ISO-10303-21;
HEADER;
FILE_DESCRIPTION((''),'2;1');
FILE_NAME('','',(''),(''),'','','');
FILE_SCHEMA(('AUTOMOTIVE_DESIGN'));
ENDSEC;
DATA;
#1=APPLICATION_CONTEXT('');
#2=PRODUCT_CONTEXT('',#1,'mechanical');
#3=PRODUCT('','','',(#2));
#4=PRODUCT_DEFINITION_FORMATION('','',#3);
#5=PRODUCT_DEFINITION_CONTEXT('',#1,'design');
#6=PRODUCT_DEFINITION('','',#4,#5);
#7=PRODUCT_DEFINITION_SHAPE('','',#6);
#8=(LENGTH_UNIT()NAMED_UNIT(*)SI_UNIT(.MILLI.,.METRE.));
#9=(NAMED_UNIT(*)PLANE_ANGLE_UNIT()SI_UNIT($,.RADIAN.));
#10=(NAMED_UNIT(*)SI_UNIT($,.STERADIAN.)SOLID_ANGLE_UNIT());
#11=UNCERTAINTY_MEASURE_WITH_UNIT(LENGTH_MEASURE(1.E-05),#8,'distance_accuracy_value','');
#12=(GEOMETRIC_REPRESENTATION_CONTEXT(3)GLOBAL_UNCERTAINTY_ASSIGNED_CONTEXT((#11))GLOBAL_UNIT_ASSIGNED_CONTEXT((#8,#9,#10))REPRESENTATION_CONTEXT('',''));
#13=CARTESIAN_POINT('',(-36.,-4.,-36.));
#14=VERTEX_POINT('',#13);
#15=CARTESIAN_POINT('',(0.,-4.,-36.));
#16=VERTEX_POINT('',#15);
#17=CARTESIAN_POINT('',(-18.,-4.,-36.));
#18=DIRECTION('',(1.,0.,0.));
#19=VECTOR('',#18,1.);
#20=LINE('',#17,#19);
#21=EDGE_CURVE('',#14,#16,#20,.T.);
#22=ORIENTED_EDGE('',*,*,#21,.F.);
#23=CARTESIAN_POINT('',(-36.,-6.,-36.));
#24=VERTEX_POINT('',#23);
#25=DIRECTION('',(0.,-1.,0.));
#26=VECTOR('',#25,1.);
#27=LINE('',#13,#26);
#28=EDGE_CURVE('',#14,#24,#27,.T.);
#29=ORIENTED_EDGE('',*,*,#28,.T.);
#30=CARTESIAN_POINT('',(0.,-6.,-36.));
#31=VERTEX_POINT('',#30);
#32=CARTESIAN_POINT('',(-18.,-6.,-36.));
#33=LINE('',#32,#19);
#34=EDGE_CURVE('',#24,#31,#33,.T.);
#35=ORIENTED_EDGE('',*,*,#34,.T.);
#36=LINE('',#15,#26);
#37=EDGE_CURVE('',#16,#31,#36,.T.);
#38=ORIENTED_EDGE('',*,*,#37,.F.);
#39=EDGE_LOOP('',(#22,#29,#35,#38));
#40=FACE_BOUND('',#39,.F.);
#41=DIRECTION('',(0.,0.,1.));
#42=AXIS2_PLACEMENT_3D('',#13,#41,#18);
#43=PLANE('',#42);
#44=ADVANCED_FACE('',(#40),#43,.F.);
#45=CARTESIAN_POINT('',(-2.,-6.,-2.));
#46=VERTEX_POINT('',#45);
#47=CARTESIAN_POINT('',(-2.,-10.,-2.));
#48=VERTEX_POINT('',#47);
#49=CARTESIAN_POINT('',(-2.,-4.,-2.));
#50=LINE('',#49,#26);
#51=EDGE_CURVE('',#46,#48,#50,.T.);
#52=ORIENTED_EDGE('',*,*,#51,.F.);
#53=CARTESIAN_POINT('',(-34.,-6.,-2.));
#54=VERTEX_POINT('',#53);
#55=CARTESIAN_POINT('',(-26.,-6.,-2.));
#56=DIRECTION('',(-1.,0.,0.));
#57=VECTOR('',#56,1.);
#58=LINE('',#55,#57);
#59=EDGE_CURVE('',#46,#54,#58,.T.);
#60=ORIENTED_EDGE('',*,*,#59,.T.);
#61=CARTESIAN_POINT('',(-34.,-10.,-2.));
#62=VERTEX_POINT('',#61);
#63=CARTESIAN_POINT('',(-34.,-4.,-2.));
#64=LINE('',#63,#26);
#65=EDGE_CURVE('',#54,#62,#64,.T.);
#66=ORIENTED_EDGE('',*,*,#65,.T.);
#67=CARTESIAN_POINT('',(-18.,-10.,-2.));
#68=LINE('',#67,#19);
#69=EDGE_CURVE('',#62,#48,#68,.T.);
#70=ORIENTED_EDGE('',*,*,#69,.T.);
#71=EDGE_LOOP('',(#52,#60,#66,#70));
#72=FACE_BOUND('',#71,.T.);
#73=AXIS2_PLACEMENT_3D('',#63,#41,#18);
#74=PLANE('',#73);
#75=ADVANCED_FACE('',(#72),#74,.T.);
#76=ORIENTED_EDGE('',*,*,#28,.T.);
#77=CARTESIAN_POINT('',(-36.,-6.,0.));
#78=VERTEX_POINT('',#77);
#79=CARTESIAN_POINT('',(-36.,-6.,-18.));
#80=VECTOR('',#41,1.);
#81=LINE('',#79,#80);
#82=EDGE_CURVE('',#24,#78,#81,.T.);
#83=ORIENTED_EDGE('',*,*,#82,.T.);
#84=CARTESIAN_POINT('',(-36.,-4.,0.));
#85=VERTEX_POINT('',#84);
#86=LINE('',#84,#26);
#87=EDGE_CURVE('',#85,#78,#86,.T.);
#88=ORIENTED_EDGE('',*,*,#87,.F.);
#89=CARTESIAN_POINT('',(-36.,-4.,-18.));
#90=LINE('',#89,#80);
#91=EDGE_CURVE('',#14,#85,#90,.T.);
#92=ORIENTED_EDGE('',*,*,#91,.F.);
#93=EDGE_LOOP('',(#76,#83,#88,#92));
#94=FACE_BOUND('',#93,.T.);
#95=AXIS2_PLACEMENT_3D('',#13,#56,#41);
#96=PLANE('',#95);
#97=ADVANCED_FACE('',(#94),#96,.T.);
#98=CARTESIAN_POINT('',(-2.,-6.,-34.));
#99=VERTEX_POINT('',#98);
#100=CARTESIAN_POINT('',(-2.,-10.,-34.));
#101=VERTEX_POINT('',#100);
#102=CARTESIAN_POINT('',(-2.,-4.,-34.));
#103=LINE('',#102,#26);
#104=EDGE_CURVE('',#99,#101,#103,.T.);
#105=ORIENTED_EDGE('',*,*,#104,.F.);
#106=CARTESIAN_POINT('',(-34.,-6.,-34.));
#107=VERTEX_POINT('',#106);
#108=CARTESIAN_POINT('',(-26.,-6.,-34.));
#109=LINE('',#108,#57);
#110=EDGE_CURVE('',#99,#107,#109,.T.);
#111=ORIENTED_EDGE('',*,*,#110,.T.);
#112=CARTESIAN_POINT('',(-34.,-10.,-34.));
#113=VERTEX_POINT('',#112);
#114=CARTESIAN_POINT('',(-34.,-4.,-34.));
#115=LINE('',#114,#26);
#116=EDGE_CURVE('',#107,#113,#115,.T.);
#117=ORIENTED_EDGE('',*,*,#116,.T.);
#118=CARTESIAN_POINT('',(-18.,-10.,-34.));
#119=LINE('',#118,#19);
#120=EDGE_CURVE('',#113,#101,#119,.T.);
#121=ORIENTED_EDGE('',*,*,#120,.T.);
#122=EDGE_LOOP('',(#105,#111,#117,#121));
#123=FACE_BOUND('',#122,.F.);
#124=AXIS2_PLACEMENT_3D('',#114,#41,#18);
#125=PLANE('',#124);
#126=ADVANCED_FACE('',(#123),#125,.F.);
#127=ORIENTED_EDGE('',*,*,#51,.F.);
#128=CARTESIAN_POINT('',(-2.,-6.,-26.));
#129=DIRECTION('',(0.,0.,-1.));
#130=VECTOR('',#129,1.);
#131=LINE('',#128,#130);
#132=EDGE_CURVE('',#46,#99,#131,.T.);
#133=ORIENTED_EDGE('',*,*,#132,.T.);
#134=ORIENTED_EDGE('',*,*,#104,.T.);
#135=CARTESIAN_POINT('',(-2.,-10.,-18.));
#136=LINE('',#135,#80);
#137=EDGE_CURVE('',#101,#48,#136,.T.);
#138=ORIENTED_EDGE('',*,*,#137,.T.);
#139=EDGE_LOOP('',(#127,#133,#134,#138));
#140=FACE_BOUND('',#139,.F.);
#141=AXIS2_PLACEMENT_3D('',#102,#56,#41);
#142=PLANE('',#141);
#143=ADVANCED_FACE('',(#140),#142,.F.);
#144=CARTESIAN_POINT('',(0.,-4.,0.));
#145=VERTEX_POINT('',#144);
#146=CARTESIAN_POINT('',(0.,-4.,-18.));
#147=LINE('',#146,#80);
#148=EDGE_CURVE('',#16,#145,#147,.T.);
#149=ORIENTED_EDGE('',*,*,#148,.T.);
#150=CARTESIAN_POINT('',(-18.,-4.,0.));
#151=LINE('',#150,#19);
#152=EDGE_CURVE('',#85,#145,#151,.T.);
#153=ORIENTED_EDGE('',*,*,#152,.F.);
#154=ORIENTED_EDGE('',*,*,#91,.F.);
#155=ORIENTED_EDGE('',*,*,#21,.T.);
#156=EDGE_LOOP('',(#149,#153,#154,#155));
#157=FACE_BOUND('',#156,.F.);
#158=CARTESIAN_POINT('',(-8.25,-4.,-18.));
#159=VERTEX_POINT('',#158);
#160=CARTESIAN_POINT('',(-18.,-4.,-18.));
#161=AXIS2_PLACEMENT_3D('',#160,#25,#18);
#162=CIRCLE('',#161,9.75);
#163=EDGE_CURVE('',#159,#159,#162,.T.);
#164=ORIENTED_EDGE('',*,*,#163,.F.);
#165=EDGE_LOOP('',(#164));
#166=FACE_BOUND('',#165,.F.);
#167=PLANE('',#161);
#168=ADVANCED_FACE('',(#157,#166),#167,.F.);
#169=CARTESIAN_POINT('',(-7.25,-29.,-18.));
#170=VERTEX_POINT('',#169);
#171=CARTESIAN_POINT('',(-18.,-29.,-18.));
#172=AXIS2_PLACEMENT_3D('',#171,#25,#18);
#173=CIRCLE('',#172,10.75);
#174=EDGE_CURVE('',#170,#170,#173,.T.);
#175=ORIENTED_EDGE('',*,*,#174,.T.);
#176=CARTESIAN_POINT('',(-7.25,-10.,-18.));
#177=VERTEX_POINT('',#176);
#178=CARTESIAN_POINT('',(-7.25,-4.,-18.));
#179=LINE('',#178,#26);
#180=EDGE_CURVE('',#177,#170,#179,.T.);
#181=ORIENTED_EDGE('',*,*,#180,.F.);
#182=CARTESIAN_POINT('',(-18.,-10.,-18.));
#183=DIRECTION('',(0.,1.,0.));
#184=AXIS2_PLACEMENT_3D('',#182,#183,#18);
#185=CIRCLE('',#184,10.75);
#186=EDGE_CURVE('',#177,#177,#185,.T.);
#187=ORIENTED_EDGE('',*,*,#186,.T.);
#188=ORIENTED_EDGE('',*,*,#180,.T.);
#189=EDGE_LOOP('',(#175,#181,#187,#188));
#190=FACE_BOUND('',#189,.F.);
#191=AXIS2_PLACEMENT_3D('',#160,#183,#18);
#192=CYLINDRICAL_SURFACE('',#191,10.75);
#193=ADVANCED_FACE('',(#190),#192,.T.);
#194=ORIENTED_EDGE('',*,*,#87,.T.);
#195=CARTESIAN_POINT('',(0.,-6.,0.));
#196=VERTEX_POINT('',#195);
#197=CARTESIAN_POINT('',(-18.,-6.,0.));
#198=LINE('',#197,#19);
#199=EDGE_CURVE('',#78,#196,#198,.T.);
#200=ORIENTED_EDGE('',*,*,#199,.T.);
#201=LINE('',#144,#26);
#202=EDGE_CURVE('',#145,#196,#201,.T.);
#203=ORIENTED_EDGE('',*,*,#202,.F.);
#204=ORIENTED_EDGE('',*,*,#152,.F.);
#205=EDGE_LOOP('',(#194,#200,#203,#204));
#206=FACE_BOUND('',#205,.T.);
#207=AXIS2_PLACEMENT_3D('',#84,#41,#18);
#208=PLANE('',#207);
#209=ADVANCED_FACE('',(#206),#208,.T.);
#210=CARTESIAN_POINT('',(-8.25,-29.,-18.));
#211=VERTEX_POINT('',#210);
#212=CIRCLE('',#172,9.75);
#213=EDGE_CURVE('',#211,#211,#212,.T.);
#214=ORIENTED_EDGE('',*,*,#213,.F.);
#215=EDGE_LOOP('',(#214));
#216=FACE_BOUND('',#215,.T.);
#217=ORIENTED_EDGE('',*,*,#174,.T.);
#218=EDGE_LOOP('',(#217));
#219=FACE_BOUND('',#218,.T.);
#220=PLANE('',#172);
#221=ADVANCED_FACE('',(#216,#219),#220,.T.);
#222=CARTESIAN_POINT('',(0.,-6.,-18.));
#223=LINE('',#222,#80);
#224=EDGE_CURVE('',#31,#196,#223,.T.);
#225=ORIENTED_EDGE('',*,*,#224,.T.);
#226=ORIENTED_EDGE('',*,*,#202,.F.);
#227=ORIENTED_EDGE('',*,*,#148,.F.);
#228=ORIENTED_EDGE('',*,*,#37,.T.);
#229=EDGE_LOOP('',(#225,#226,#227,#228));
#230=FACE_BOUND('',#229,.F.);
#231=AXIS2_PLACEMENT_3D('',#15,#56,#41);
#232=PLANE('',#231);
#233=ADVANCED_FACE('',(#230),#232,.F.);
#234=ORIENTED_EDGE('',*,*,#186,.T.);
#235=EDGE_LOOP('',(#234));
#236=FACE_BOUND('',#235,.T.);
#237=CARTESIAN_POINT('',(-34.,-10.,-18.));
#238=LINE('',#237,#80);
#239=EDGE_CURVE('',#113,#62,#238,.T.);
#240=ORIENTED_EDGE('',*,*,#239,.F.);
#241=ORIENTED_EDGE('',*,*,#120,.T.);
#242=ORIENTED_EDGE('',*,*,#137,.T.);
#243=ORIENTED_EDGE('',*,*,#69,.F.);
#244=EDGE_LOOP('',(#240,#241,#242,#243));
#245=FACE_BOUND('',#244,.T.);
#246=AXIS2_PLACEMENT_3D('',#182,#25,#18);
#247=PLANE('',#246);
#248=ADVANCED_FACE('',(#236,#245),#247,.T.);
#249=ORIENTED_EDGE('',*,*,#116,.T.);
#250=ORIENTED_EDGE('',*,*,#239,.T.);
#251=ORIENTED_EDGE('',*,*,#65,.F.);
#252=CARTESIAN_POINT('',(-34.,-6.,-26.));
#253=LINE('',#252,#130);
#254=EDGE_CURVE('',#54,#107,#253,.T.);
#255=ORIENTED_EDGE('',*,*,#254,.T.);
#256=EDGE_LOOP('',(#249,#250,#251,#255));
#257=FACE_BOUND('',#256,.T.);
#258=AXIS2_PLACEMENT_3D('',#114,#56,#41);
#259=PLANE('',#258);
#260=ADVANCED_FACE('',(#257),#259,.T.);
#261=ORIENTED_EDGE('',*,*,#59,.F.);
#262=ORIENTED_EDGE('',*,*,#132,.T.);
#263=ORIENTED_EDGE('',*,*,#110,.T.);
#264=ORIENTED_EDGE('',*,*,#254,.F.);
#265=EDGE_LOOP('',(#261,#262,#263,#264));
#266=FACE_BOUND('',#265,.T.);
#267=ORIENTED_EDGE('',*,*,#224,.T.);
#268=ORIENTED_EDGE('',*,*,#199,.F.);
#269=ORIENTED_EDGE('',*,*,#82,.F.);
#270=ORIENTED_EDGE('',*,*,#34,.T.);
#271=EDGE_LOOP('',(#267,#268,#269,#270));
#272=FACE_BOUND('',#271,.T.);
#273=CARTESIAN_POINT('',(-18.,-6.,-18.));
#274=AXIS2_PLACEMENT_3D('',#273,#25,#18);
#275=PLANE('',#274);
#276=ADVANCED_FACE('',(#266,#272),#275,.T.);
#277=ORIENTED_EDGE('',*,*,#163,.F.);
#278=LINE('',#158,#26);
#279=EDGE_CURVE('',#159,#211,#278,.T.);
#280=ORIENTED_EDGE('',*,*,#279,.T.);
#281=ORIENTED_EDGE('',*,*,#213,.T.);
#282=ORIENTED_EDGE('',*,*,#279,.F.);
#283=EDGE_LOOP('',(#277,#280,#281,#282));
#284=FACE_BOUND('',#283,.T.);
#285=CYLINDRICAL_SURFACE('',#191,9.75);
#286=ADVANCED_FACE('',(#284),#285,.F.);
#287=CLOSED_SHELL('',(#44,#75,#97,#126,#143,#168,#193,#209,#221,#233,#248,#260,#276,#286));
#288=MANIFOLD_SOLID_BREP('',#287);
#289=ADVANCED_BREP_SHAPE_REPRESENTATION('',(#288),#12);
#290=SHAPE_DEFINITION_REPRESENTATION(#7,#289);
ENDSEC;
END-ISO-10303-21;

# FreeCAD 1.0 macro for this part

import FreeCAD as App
import Part
import Sketcher
Q = App.Units.Quantity


def add_polygon(sketch, points):
    """Adds a closed chain of lines whose ends are joined by coincident constraints."""
    first, n = sketch.GeometryCount, len(points)
    for a, b in zip(points, points[1:] + points[:1]):
        sketch.addGeometry(Part.LineSegment(App.Vector(*a, 0), App.Vector(*b, 0)), False)
    for i in range(n):
        sketch.addConstraint(Sketcher.Constraint("Coincident", first + i, 2, first + (i + 1) % n, 1))

doc = App.newDocument("Part")
body = doc.addObject("PartDesign::Body", "Body")

# Sketch on XZ plane
sketch1 = body.newObject("Sketcher::SketchObject", "Sketch")
sketch1.AttachmentSupport = (doc.getObject("XZ_Plane"), [""])
sketch1.MapMode = "FlatFace"
add_polygon(sketch1, [(-34, -2), (-34, -34), (-2, -34), (-2, -2)])  # lines 0-3
sketch1.addGeometry(Part.Circle(App.Vector(-18, -18, 0), App.Vector(0, 0, 1), 9.75), False)  # 4
sketch1.addConstraint([
    Sketcher.Constraint("Vertical", 0),
    Sketcher.Constraint("Horizontal", 1),
    Sketcher.Constraint("Vertical", 2),
    Sketcher.Constraint("Horizontal", 3),
    Sketcher.Constraint("Equal", 3, 0),
    Sketcher.Constraint("Diameter", 4, Q("19.5 mm")),
    Sketcher.Constraint("DistanceX", 1, 1, 1, 2, Q("32 mm")),
    Sketcher.Constraint("DistanceX", 4, 3, -1, 1, Q("18 mm")),
    Sketcher.Constraint("DistanceY", 4, 3, -1, 1, Q("18 mm")),
    Sketcher.Constraint("DistanceX", 0, 2, -1, 1, Q("34 mm")),
    Sketcher.Constraint("DistanceY", 0, 2, -1, 1, Q("34 mm")),
])
pad1 = body.newObject("PartDesign::Pad", "Pad")
pad1.Profile = sketch1
pad1.Length = 6
body2 = doc.addObject("PartDesign::Body", "Body001")
doc.recompute()

body.Placement = App.Placement(App.Vector(0, -4, 0), App.Rotation(App.Vector(0, 0, 1), 0))
boolean = body2.newObject("PartDesign::Boolean", "Boolean")
boolean.Type = "Fuse"
boolean.addObjects([body])
body3 = doc.addObject("PartDesign::Body", "Body002")

# Sketch on XZ plane
sketch2 = body3.newObject("Sketcher::SketchObject", "Sketch001")
sketch2.AttachmentSupport = (doc.getObject("XZ_Plane002"), [""])
sketch2.MapMode = "FlatFace"
sketch2.addGeometry([
    Part.Circle(App.Vector(-18, -18, 0), App.Vector(0, 0, 1), 10.75),
    Part.Circle(App.Vector(-18, -18, 0), App.Vector(0, 0, 1), 9.75),
], False)
sketch2.addConstraint([
    Sketcher.Constraint("Coincident", 1, 3, 0, 3),
    Sketcher.Constraint("Diameter", 0, Q("21.5 mm")),
    Sketcher.Constraint("Diameter", 1, Q("19.5 mm")),
    Sketcher.Constraint("DistanceX", 0, 3, -1, 1, Q("18 mm")),
    Sketcher.Constraint("DistanceY", 0, 3, -1, 1, Q("18 mm")),
])
pad2 = body3.newObject("PartDesign::Pad", "Pad001")
pad2.Profile = sketch2
pad2.Length = 25
body4 = doc.addObject("PartDesign::Body", "Body003")
doc.recompute()

body3.Placement = App.Placement(App.Vector(0, -4, 0), App.Rotation(App.Vector(0, 0, 1), 0))
boolean2 = body4.newObject("PartDesign::Boolean", "Boolean001")
boolean2.Type = "Fuse"
boolean2.addObjects([body3])
body5 = doc.addObject("PartDesign::Body", "Body004")

# Sketch on XZ plane
sketch3 = body5.newObject("Sketcher::SketchObject", "Sketch002")
sketch3.AttachmentSupport = (doc.getObject("XZ_Plane004"), [""])
sketch3.MapMode = "FlatFace"
add_polygon(sketch3, [(-36, 0), (-36, -36), (0, -36), (0, 0)])  # lines 0-3
add_polygon(sketch3, [(-4, -32), (-32, -32), (-32, -4), (-4, -4)])  # lines 4-7
sketch3.addConstraint([
    Sketcher.Constraint("Vertical", 0),
    Sketcher.Constraint("Horizontal", 1),
    Sketcher.Constraint("Vertical", 2),
    Sketcher.Constraint("Horizontal", 3),
    Sketcher.Constraint("Horizontal", 4),
    Sketcher.Constraint("Vertical", 5),
    Sketcher.Constraint("Horizontal", 6),
    Sketcher.Constraint("Vertical", 7),
    Sketcher.Constraint("Coincident", 2, 2, -1, 1),
    Sketcher.Constraint("Equal", 3, 0),
    Sketcher.Constraint("Equal", 6, 5),
    Sketcher.Constraint("DistanceX", 1, 1, 1, 2, Q("36 mm")),
    Sketcher.Constraint("DistanceX", 4, 2, 4, 1, Q("28 mm")),
    Sketcher.Constraint("DistanceX", 4, 2, -1, 1, Q("32 mm")),
    Sketcher.Constraint("DistanceY", 4, 2, -1, 1, Q("32 mm")),
])
pad3 = body5.newObject("PartDesign::Pad", "Pad002")
pad3.Profile = sketch3
pad3.Length = 2
body6 = doc.addObject("PartDesign::Body", "Body005")
doc.recompute()

body5.Placement = App.Placement(App.Vector(0, -4, 0), App.Rotation(App.Vector(0, 0, 1), 0))
boolean3 = body6.newObject("PartDesign::Boolean", "Boolean002")
boolean3.Type = "Fuse"
boolean3.addObjects([body5])
doc.recompute()

boolean4 = body6.newObject("PartDesign::Boolean", "Boolean003")
boolean4.Type = "Fuse"
boolean4.addObjects([body2])
doc.recompute()

boolean5 = body6.newObject("PartDesign::Boolean", "Boolean004")
boolean5.Type = "Fuse"
boolean5.addObjects([body4])

doc.recompute()
